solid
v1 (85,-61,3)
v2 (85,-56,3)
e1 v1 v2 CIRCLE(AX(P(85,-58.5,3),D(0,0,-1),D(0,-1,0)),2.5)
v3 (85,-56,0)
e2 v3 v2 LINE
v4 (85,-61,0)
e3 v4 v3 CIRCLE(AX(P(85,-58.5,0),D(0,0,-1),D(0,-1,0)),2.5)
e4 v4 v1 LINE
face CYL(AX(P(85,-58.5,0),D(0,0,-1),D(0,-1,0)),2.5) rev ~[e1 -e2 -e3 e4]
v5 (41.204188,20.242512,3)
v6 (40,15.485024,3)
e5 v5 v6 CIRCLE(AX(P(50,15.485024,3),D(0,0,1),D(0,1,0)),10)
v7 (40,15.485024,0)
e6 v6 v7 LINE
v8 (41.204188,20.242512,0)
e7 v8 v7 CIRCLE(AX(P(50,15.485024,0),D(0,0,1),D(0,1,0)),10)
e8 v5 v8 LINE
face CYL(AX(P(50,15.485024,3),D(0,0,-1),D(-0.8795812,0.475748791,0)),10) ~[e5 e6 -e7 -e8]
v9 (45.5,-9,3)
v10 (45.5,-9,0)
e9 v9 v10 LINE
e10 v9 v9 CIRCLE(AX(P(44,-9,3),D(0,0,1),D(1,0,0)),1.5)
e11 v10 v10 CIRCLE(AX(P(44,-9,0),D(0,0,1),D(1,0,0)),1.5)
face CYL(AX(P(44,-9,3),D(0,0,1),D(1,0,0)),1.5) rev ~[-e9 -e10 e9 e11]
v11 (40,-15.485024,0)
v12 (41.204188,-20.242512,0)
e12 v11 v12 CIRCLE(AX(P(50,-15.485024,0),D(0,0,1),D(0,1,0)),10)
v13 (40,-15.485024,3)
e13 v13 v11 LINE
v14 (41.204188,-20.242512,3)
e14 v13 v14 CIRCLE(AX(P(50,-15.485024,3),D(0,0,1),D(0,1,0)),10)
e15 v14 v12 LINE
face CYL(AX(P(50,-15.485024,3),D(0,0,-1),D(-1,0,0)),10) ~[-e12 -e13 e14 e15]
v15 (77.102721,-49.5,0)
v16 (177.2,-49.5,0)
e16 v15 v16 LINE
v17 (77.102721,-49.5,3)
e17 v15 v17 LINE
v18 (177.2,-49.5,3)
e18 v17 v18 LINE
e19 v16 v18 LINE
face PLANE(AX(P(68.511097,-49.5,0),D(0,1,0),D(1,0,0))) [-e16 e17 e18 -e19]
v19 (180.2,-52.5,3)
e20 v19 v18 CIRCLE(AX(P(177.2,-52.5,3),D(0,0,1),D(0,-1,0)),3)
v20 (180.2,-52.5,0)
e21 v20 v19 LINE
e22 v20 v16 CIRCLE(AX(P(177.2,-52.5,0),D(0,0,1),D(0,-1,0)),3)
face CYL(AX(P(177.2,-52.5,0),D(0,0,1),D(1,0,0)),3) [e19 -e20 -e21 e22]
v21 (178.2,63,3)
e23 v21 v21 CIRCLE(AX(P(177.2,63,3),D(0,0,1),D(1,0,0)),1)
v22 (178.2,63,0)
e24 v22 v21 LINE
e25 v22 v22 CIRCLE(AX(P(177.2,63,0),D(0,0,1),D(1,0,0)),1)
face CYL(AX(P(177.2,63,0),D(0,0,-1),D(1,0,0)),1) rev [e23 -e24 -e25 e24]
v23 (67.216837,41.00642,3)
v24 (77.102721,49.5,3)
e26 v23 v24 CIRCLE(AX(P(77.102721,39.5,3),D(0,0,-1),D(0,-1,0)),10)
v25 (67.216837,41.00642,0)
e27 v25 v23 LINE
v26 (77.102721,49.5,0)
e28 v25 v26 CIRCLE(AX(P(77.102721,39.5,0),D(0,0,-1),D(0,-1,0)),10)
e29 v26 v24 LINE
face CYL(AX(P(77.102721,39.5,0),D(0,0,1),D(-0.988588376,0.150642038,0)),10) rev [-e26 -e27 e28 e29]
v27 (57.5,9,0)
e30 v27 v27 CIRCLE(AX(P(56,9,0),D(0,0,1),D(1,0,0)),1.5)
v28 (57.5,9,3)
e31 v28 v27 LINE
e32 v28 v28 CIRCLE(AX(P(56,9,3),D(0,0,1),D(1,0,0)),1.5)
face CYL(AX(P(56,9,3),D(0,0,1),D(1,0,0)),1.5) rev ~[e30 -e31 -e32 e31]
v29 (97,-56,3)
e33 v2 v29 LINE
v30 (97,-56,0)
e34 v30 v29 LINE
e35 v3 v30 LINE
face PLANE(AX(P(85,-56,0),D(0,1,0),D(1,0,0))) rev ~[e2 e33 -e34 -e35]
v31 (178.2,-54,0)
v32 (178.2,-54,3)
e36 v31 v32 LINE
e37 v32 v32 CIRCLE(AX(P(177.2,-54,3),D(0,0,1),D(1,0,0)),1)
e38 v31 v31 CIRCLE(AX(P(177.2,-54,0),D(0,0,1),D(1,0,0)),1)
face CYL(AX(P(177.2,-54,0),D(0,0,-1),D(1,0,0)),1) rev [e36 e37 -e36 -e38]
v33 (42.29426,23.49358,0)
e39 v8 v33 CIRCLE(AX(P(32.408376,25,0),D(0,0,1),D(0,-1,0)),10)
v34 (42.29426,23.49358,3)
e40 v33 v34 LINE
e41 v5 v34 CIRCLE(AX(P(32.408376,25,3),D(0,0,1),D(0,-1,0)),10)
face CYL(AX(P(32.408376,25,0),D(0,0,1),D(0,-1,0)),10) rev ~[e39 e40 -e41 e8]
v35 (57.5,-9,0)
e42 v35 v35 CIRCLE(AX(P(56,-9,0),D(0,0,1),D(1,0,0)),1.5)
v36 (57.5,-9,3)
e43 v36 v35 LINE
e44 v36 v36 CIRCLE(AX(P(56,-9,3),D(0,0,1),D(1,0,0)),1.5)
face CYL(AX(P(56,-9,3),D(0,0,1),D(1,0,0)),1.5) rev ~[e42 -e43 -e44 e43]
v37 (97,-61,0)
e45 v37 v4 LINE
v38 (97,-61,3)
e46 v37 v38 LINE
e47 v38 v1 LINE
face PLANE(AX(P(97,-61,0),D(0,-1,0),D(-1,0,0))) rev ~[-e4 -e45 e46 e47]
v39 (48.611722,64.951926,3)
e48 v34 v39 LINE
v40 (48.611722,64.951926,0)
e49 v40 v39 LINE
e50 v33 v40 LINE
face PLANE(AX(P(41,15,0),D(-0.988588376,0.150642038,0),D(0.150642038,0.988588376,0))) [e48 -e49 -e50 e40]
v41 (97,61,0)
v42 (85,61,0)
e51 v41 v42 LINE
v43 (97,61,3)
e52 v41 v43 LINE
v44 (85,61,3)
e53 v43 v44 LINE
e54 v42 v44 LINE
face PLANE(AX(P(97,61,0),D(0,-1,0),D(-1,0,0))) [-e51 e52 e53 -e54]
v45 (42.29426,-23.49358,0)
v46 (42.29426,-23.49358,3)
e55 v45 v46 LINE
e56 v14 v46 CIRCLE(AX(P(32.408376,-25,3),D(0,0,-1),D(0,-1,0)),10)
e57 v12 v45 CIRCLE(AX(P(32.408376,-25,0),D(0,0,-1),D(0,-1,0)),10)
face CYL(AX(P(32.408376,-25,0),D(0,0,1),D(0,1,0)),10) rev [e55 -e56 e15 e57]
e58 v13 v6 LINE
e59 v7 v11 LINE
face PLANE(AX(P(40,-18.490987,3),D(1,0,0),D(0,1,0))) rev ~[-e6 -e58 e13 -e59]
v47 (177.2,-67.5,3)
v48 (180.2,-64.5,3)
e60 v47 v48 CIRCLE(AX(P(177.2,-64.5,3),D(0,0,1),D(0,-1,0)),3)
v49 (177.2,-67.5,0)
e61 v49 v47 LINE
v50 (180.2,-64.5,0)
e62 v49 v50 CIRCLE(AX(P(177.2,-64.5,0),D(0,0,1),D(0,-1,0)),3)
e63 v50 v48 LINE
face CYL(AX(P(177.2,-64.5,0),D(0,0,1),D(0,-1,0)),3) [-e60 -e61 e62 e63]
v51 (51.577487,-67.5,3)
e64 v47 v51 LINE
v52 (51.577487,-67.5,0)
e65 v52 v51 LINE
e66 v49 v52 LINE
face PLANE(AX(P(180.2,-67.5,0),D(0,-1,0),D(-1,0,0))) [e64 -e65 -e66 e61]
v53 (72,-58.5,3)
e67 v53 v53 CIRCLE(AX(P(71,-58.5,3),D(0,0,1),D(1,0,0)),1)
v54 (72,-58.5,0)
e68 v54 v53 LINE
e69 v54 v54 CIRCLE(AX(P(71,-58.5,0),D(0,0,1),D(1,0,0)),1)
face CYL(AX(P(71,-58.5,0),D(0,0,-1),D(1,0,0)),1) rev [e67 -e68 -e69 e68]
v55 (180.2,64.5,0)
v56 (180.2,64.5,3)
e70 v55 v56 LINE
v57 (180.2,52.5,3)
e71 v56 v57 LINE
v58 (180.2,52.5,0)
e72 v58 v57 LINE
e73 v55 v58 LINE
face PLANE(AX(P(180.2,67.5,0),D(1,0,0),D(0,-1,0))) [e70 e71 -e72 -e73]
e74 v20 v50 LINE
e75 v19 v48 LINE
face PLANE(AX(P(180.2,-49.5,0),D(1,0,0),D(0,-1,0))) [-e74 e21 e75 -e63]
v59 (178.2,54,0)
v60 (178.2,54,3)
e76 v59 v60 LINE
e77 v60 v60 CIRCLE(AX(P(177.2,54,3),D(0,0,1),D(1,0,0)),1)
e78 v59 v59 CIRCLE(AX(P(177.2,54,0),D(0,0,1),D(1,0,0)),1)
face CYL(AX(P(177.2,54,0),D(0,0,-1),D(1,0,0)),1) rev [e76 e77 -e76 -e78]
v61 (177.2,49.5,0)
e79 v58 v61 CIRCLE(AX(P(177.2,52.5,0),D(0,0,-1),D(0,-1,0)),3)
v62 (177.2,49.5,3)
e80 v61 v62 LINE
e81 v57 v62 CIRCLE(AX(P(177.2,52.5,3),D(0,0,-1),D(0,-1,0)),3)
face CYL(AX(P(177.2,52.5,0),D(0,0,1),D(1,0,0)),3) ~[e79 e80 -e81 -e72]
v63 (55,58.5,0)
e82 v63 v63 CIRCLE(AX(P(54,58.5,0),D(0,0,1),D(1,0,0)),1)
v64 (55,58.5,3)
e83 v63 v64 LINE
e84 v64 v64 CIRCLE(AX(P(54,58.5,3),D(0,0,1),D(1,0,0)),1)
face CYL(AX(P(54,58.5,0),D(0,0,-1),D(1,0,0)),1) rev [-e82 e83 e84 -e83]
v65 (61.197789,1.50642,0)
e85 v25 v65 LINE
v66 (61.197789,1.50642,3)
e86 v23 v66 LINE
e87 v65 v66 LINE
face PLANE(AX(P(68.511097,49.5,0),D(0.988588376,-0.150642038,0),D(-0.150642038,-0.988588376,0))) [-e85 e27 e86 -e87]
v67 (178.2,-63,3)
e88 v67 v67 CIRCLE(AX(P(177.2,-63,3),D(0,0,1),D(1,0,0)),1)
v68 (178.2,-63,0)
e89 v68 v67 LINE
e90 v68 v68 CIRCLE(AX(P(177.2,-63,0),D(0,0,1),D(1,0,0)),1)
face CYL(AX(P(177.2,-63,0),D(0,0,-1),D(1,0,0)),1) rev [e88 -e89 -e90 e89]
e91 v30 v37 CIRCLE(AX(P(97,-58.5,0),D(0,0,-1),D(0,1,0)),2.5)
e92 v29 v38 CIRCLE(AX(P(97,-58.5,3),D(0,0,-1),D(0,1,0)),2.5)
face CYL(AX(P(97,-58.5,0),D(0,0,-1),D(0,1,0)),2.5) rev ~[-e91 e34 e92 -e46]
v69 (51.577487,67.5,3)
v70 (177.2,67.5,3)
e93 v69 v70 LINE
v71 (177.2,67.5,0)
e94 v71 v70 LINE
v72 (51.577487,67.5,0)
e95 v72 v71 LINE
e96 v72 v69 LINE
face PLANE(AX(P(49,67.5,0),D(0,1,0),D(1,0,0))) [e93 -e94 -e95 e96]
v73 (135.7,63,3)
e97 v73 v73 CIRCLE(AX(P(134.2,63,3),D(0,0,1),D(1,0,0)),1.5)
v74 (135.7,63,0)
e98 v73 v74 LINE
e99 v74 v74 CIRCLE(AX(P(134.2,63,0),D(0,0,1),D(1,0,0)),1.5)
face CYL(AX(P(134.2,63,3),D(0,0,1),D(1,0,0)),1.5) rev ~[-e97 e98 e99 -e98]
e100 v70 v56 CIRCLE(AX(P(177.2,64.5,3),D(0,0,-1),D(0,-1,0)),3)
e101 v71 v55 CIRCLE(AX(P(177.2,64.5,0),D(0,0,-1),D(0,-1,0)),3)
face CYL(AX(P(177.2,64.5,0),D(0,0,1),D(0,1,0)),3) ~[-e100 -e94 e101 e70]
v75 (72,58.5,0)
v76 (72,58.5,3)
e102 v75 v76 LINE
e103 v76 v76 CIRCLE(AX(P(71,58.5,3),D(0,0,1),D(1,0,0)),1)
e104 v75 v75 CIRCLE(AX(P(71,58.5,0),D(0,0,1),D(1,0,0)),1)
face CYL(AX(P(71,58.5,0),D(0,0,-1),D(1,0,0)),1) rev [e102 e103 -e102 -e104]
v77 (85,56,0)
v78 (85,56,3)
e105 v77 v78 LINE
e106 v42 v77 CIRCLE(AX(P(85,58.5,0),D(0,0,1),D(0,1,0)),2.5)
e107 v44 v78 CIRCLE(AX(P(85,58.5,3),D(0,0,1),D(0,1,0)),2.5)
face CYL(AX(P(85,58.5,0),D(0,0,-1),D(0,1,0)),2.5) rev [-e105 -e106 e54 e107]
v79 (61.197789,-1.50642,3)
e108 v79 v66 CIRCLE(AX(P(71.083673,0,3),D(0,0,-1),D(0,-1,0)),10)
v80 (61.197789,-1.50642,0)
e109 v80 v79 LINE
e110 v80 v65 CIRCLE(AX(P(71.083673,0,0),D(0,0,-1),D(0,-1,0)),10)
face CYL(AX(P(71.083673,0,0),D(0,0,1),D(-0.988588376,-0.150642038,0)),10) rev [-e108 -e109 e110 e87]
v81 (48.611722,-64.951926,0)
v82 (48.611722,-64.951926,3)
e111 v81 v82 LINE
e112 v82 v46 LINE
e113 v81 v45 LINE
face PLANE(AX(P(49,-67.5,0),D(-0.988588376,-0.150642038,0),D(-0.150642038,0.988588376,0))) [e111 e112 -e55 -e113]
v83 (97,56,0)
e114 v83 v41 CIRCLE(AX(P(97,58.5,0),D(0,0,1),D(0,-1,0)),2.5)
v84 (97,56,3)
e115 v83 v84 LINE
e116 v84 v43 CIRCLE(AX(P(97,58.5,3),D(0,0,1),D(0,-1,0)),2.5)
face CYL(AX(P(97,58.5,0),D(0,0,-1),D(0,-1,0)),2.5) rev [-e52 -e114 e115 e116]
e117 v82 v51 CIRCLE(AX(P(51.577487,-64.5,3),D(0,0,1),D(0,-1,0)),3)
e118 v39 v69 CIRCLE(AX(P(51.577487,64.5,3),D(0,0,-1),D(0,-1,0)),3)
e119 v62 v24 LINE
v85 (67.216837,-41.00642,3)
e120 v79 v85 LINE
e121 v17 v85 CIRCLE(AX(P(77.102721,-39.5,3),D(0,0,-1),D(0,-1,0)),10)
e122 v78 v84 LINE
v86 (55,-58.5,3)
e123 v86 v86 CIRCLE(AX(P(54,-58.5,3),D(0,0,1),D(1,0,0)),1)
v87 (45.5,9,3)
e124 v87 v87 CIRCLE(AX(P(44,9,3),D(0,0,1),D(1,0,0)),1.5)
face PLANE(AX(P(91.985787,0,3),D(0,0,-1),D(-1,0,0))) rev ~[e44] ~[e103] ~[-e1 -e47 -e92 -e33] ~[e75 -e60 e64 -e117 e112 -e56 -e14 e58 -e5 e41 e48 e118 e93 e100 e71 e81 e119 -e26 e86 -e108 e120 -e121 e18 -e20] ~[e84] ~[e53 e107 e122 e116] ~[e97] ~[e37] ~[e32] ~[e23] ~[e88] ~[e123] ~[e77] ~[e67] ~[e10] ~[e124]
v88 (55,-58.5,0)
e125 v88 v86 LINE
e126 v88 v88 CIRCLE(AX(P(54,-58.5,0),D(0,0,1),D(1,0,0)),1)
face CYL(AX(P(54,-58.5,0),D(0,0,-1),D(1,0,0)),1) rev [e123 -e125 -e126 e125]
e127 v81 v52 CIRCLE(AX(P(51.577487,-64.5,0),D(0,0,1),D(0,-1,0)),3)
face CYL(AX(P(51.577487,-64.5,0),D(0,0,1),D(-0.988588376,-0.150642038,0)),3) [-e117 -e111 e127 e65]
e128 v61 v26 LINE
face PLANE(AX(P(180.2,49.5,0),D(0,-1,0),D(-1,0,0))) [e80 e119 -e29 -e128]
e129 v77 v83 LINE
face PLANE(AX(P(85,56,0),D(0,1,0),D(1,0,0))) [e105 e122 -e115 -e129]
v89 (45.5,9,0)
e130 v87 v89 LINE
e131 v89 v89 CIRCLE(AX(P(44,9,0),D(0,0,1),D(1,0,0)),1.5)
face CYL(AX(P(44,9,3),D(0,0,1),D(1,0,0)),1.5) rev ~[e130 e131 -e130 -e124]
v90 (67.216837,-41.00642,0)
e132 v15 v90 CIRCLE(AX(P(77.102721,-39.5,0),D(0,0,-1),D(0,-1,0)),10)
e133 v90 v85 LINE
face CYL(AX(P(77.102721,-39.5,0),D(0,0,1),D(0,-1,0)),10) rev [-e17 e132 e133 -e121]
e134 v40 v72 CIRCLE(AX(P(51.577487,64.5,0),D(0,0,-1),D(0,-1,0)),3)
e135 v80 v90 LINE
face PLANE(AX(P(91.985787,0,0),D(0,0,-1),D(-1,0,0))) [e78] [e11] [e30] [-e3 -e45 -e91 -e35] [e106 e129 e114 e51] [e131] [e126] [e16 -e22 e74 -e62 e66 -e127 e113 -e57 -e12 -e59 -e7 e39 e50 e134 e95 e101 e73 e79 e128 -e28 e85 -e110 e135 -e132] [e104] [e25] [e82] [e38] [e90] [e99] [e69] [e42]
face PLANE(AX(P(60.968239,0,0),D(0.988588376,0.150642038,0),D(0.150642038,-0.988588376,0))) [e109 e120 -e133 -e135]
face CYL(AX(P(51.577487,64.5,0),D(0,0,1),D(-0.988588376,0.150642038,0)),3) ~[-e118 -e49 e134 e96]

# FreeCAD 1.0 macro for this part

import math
import FreeCAD as App
import Part
import Sketcher
Q = App.Units.Quantity


def edges_at(feature, points):
    """Names of the edges that pass closest to the given points."""
    edges = feature.Shape.Edges
    near = lambda p: min(range(len(edges)), key=lambda i: edges[i].distToShape(Part.Vertex(*p))[0])
    return sorted({f"Edge{near(p) + 1}" for p in points})

doc = App.newDocument("Part")
body = doc.addObject("PartDesign::Body", "Body")

# Sketch on XY plane
sketch1 = body.newObject("Sketcher::SketchObject", "Sketch")
sketch1.AttachmentSupport = (doc.getObject("XY_Plane"), [""])
sketch1.MapMode = "FlatFace"
sketch1.addGeometry([
    Part.LineSegment(App.Vector(0, 15, 0), App.Vector(0, -15, 0)),  # 0
    Part.LineSegment(App.Vector(0, -15, 0), App.Vector(41, -15, 0)),  # 1
    Part.LineSegment(App.Vector(41, -15, 0), App.Vector(49, -67.5, 0)),  # 2
    Part.LineSegment(App.Vector(49, -67.5, 0), App.Vector(180.2, -67.5, 0)),  # 3
    Part.LineSegment(App.Vector(180.2, -67.5, 0), App.Vector(180.2, -49.5, 0)),  # 4
    Part.LineSegment(App.Vector(180.2, -49.5, 0), App.Vector(68.5, -49.5, 0)),  # 5
    Part.LineSegment(App.Vector(68.5, -49.5, 0), App.Vector(61, 0, 0)),  # 6
    Part.LineSegment(App.Vector(61, 0, 0), App.Vector(68.5, 49.5, 0)),  # 7
    Part.LineSegment(App.Vector(68.5, 49.5, 0), App.Vector(180.2, 49.5, 0)),  # 8
    Part.LineSegment(App.Vector(180.2, 49.5, 0), App.Vector(180.2, 67.5, 0)),  # 9
    Part.LineSegment(App.Vector(180.2, 67.5, 0), App.Vector(49, 67.5, 0)),  # 10
    Part.LineSegment(App.Vector(49, 67.5, 0), App.Vector(41, 15, 0)),  # 11
    Part.LineSegment(App.Vector(41, 15, 0), App.Vector(0, 15, 0)),  # 12
    Part.Circle(App.Vector(177.2, -63, 0), App.Vector(0, 0, 1), 1),  # 13
    Part.Circle(App.Vector(177.2, -54, 0), App.Vector(0, 0, 1), 1),  # 14
    Part.LineSegment(App.Vector(85, -56, 0), App.Vector(97, -56, 0)),  # 15
    Part.ArcOfCircle(Part.Circle(App.Vector(97, -58.5, 0), App.Vector(0, 0, 1), 2.5), math.radians(-90), math.radians(90)),  # 16
    Part.LineSegment(App.Vector(97, -61, 0), App.Vector(85, -61, 0)),  # 17
    Part.ArcOfCircle(Part.Circle(App.Vector(85, -58.5, 0), App.Vector(0, 0, 1), 2.5), math.radians(90), math.radians(270)),  # 18
    Part.Circle(App.Vector(71, -58.5, 0), App.Vector(0, 0, 1), 1),  # 19
    Part.Circle(App.Vector(54, -58.5, 0), App.Vector(0, 0, 1), 1),  # 20
    Part.Circle(App.Vector(177.2, 54, 0), App.Vector(0, 0, 1), 1),  # 21
    Part.Circle(App.Vector(177.2, 63, 0), App.Vector(0, 0, 1), 1),  # 22
    Part.ArcOfCircle(Part.Circle(App.Vector(85, 58.5, 0), App.Vector(0, 0, 1), 2.5), math.radians(90), math.radians(270)),  # 23
    Part.LineSegment(App.Vector(85, 61, 0), App.Vector(97, 61, 0)),  # 24
    Part.ArcOfCircle(Part.Circle(App.Vector(97, 58.5, 0), App.Vector(0, 0, 1), 2.5), math.radians(-90), math.radians(90)),  # 25
    Part.LineSegment(App.Vector(97, 56, 0), App.Vector(85, 56, 0)),  # 26
    Part.Circle(App.Vector(71, 58.5, 0), App.Vector(0, 0, 1), 1),  # 27
    Part.Circle(App.Vector(54, 58.5, 0), App.Vector(0, 0, 1), 1),  # 28
], False)
sketch1.addConstraint([
    Sketcher.Constraint("Coincident", 0, 2, 1, 1),
    Sketcher.Constraint("Coincident", 1, 2, 2, 1),
    Sketcher.Constraint("Coincident", 2, 2, 3, 1),
    Sketcher.Constraint("Coincident", 3, 2, 4, 1),
    Sketcher.Constraint("Coincident", 4, 2, 5, 1),
    Sketcher.Constraint("Coincident", 5, 2, 6, 1),
    Sketcher.Constraint("Coincident", 6, 2, 7, 1),
    Sketcher.Constraint("Coincident", 7, 2, 8, 1),
    Sketcher.Constraint("Coincident", 8, 2, 9, 1),
    Sketcher.Constraint("Coincident", 9, 2, 10, 1),
    Sketcher.Constraint("Coincident", 10, 2, 11, 1),
    Sketcher.Constraint("Coincident", 11, 2, 12, 1),
    Sketcher.Constraint("Coincident", 12, 2, 0, 1),
    Sketcher.Constraint("Tangent", 15, 2, 16, 2),
    Sketcher.Constraint("Tangent", 16, 1, 17, 1),
    Sketcher.Constraint("Tangent", 17, 2, 18, 2),
    Sketcher.Constraint("Tangent", 18, 1, 15, 1),
    Sketcher.Constraint("Tangent", 23, 1, 24, 1),
    Sketcher.Constraint("Tangent", 24, 2, 25, 2),
    Sketcher.Constraint("Tangent", 25, 1, 26, 1),
    Sketcher.Constraint("Tangent", 26, 2, 23, 2),
    Sketcher.Constraint("Vertical", 0),
    Sketcher.Constraint("Horizontal", 1),
    Sketcher.Constraint("Horizontal", 3),
    Sketcher.Constraint("Vertical", 4),
    Sketcher.Constraint("Horizontal", 5),
    Sketcher.Constraint("Horizontal", 8),
    Sketcher.Constraint("Vertical", 9),
    Sketcher.Constraint("Horizontal", 10),
    Sketcher.Constraint("Horizontal", 12),
    Sketcher.Constraint("Horizontal", 15),
    Sketcher.Constraint("Horizontal", 17),
    Sketcher.Constraint("Horizontal", 24),
    Sketcher.Constraint("Horizontal", 26),
    Sketcher.Constraint("Equal", 13, 14),
    Sketcher.Constraint("Equal", 14, 19),
    Sketcher.Constraint("Equal", 19, 20),
    Sketcher.Constraint("Equal", 20, 21),
    Sketcher.Constraint("Equal", 21, 22),
    Sketcher.Constraint("Equal", 18, 23),
    Sketcher.Constraint("Equal", 22, 27),
    Sketcher.Constraint("Equal", 27, 28),
    Sketcher.Constraint("Symmetric", 0, 2, 12, 2, -1, 1),
    Sketcher.Constraint("Symmetric", 14, 3, 21, 3, -1),
    Sketcher.Constraint("Symmetric", 13, 3, 22, 3, -1),
    Sketcher.Constraint("Symmetric", 18, 3, 23, 3, -1),
    Sketcher.Constraint("Symmetric", 19, 3, 27, 3, -1),
    Sketcher.Constraint("Symmetric", 20, 3, 28, 3, -1),
    Sketcher.Constraint("Symmetric", 5, 2, 7, 2, -1),
    Sketcher.Constraint("Symmetric", 3, 2, 9, 2, -1),
    Sketcher.Constraint("PointOnObject", 6, 2, -1),
    Sketcher.Constraint("Parallel", 2, 6),
    Sketcher.Constraint("Parallel", 7, 11),
    Sketcher.Constraint("Horizontal", 18, 3, 19, 3),
    Sketcher.Constraint("Horizontal", 19, 3, 20, 3),
    Sketcher.Constraint("Vertical", 13, 3, 14, 3),
    Sketcher.Constraint("Vertical", 16, 3, 25, 3),
    Sketcher.Constraint("Vertical", 2, 2, 10, 2),
    Sketcher.Constraint("Diameter", 13, Q("2 mm")),
    Sketcher.Constraint("Radius", 16, Q("2.5 mm")),
    Sketcher.Constraint("DistanceX", 1, 1, 1, 2, Q("41 mm")),
    Sketcher.Constraint("DistanceX", 15, 1, 15, 2, Q("12 mm")),
    Sketcher.Constraint("DistanceY", 0, 2, 0, 1, Q("30 mm")),
    Sketcher.Constraint("DistanceY", 4, 1, 4, 2, Q("18 mm")),
    Sketcher.Constraint("DistanceX", 3, 1, 3, 2, Q("131.2 mm")),
    Sketcher.Constraint("DistanceY", 13, 3, -1, 1, Q("63 mm")),
    Sketcher.Constraint("DistanceY", 14, 3, -1, 1, Q("54 mm")),
    Sketcher.Constraint("DistanceX", -1, 1, 16, 3, Q("97 mm")),
    Sketcher.Constraint("DistanceX", -1, 1, 19, 3, Q("71 mm")),
    Sketcher.Constraint("DistanceX", -1, 1, 20, 3, Q("54 mm")),
    Sketcher.Constraint("DistanceX", -1, 1, 2, 2, Q("49 mm")),
    Sketcher.Constraint("DistanceY", 15, 2, -1, 1, Q("56 mm")),
    Sketcher.Constraint("DistanceY", 2, 2, 20, 3, Q("9 mm")),
    Sketcher.Constraint("DistanceX", 13, 3, 3, 2, Q("3 mm")),
    Sketcher.Constraint("DistanceX", 5, 2, 5, 1, Q("111.688903 mm")),
])
pad1 = body.newObject("PartDesign::Pad", "Pad")
pad1.Profile = sketch1
pad1.Length = 3
doc.recompute()

fillet = body.newObject("PartDesign::Fillet", "Fillet")
fillet.Base = (pad1, edges_at(pad1, [(41, -15, 1.5), (41, 15, 1.5)]))
fillet.Radius = 10
doc.recompute()

fillet2 = body.newObject("PartDesign::Fillet", "Fillet001")
fillet2.Base = (fillet, edges_at(fillet, [(68.511, -49.5, 1.5), (68.511, 49.5, 1.5)]))
fillet2.Radius = 10
doc.recompute()

fillet3 = body.newObject("PartDesign::Fillet", "Fillet002")
fillet3.Base = (fillet2, edges_at(fillet2, [(0, -15, 1.5), (0, 15, 1.5)]))
fillet3.Radius = 5
doc.recompute()

fillet4 = body.newObject("PartDesign::Fillet", "Fillet003")
fillet4.Base = (fillet3, edges_at(fillet3, [
    (180.2, -49.5, 1.5),
    (180.2, -67.5, 1.5),
    (49, -67.5, 1.5),
    (49, 67.5, 1.5),
    (180.2, 67.5, 1.5),
    (180.2, 49.5, 1.5),
]))
fillet4.Radius = 3
doc.recompute()

fillet5 = body.newObject("PartDesign::Fillet", "Fillet004")
fillet5.Base = (fillet4, edges_at(fillet4, [(60.968, 0, 1.5)]))
fillet5.Radius = 10

# Sketch on XY plane
sketch2 = body.newObject("Sketcher::SketchObject", "Sketch001")
sketch2.AttachmentSupport = (doc.getObject("XY_Plane"), [""])
sketch2.MapMode = "FlatFace"
sketch2.AttachmentOffset = App.Placement(App.Vector(0, 0, 3), App.Rotation())
sketch2.addGeometry(Part.Circle(App.Vector(134.2, 63, 0), App.Vector(0, 0, 1), 1.5), False)
sketch2.addConstraint([
    Sketcher.Constraint("Diameter", 0, Q("3 mm")),
    Sketcher.Constraint("DistanceY", -1, 1, 0, 3, Q("63 mm")),
    Sketcher.Constraint("DistanceX", -1, 1, 0, 3, Q("134.2 mm")),
])
pocket1 = body.newObject("PartDesign::Pocket", "Pocket")
pocket1.Profile = sketch2
pocket1.Length = 10

# Sketch on XY plane
sketch3 = body.newObject("Sketcher::SketchObject", "Sketch002")
sketch3.AttachmentSupport = (doc.getObject("XY_Plane"), [""])
sketch3.MapMode = "FlatFace"
sketch3.AttachmentOffset = App.Placement(App.Vector(0, 0, 3), App.Rotation())
sketch3.addGeometry([
    Part.LineSegment(App.Vector(0, 18, 0), App.Vector(0, -18, 0)),
    Part.LineSegment(App.Vector(0, -18, 0), App.Vector(40, -18, 0)),
    Part.LineSegment(App.Vector(40, -18, 0), App.Vector(40, 18, 0)),
    Part.LineSegment(App.Vector(40, 18, 0), App.Vector(0, 18, 0)),
], False)
sketch3.addConstraint([
    Sketcher.Constraint("Coincident", 0, 2, 1, 1),
    Sketcher.Constraint("Coincident", 1, 2, 2, 1),
    Sketcher.Constraint("Coincident", 2, 2, 3, 1),
    Sketcher.Constraint("Coincident", 3, 2, 0, 1),
    Sketcher.Constraint("Vertical", 0),
    Sketcher.Constraint("Horizontal", 1),
    Sketcher.Constraint("Vertical", 2),
    Sketcher.Constraint("Horizontal", 3),
    Sketcher.Constraint("Symmetric", 0, 2, 3, 2, -1, 1),
    Sketcher.Constraint("DistanceX", 1, 1, 1, 2, Q("40 mm")),
    Sketcher.Constraint("DistanceY", 0, 2, 0, 1, Q("36.981975 mm")),
])
pocket2 = body.newObject("PartDesign::Pocket", "Pocket001")
pocket2.Profile = sketch3
pocket2.Length = 10
doc.recompute()

fillet6 = body.newObject("PartDesign::Fillet", "Fillet005")
fillet6.Base = (pocket2, edges_at(pocket2, [(40, 18.491, 1.5), (40, -18.491, 1.5)]))
fillet6.Radius = 10

# Sketch on XY plane
sketch4 = body.newObject("Sketcher::SketchObject", "Sketch003")
sketch4.AttachmentSupport = (doc.getObject("XY_Plane"), [""])
sketch4.MapMode = "FlatFace"
sketch4.AttachmentOffset = App.Placement(App.Vector(0, 0, 3), App.Rotation())
sketch4.addGeometry([
    Part.Circle(App.Vector(44, 9, 0), App.Vector(0, 0, 1), 1.5),
    Part.Circle(App.Vector(56, 9, 0), App.Vector(0, 0, 1), 1.5),
    Part.Circle(App.Vector(44, -9, 0), App.Vector(0, 0, 1), 1.5),
    Part.Circle(App.Vector(56, -9, 0), App.Vector(0, 0, 1), 1.5),
], False)
sketch4.addConstraint([
    Sketcher.Constraint("Equal", 0, 1),
    Sketcher.Constraint("Equal", 1, 2),
    Sketcher.Constraint("Equal", 2, 3),
    Sketcher.Constraint("Symmetric", 0, 3, 2, 3, -1),
    Sketcher.Constraint("Symmetric", 1, 3, 3, 3, -1),
    Sketcher.Constraint("Horizontal", 0, 3, 1, 3),
    Sketcher.Constraint("Diameter", 0, Q("3 mm")),
    Sketcher.Constraint("DistanceX", -1, 1, 0, 3, Q("44 mm")),
    Sketcher.Constraint("DistanceY", -1, 1, 0, 3, Q("9 mm")),
    Sketcher.Constraint("DistanceX", -1, 1, 1, 3, Q("56 mm")),
])
pocket3 = body.newObject("PartDesign::Pocket", "Pocket002")
pocket3.Profile = sketch4
pocket3.Length = 31

doc.recompute()
